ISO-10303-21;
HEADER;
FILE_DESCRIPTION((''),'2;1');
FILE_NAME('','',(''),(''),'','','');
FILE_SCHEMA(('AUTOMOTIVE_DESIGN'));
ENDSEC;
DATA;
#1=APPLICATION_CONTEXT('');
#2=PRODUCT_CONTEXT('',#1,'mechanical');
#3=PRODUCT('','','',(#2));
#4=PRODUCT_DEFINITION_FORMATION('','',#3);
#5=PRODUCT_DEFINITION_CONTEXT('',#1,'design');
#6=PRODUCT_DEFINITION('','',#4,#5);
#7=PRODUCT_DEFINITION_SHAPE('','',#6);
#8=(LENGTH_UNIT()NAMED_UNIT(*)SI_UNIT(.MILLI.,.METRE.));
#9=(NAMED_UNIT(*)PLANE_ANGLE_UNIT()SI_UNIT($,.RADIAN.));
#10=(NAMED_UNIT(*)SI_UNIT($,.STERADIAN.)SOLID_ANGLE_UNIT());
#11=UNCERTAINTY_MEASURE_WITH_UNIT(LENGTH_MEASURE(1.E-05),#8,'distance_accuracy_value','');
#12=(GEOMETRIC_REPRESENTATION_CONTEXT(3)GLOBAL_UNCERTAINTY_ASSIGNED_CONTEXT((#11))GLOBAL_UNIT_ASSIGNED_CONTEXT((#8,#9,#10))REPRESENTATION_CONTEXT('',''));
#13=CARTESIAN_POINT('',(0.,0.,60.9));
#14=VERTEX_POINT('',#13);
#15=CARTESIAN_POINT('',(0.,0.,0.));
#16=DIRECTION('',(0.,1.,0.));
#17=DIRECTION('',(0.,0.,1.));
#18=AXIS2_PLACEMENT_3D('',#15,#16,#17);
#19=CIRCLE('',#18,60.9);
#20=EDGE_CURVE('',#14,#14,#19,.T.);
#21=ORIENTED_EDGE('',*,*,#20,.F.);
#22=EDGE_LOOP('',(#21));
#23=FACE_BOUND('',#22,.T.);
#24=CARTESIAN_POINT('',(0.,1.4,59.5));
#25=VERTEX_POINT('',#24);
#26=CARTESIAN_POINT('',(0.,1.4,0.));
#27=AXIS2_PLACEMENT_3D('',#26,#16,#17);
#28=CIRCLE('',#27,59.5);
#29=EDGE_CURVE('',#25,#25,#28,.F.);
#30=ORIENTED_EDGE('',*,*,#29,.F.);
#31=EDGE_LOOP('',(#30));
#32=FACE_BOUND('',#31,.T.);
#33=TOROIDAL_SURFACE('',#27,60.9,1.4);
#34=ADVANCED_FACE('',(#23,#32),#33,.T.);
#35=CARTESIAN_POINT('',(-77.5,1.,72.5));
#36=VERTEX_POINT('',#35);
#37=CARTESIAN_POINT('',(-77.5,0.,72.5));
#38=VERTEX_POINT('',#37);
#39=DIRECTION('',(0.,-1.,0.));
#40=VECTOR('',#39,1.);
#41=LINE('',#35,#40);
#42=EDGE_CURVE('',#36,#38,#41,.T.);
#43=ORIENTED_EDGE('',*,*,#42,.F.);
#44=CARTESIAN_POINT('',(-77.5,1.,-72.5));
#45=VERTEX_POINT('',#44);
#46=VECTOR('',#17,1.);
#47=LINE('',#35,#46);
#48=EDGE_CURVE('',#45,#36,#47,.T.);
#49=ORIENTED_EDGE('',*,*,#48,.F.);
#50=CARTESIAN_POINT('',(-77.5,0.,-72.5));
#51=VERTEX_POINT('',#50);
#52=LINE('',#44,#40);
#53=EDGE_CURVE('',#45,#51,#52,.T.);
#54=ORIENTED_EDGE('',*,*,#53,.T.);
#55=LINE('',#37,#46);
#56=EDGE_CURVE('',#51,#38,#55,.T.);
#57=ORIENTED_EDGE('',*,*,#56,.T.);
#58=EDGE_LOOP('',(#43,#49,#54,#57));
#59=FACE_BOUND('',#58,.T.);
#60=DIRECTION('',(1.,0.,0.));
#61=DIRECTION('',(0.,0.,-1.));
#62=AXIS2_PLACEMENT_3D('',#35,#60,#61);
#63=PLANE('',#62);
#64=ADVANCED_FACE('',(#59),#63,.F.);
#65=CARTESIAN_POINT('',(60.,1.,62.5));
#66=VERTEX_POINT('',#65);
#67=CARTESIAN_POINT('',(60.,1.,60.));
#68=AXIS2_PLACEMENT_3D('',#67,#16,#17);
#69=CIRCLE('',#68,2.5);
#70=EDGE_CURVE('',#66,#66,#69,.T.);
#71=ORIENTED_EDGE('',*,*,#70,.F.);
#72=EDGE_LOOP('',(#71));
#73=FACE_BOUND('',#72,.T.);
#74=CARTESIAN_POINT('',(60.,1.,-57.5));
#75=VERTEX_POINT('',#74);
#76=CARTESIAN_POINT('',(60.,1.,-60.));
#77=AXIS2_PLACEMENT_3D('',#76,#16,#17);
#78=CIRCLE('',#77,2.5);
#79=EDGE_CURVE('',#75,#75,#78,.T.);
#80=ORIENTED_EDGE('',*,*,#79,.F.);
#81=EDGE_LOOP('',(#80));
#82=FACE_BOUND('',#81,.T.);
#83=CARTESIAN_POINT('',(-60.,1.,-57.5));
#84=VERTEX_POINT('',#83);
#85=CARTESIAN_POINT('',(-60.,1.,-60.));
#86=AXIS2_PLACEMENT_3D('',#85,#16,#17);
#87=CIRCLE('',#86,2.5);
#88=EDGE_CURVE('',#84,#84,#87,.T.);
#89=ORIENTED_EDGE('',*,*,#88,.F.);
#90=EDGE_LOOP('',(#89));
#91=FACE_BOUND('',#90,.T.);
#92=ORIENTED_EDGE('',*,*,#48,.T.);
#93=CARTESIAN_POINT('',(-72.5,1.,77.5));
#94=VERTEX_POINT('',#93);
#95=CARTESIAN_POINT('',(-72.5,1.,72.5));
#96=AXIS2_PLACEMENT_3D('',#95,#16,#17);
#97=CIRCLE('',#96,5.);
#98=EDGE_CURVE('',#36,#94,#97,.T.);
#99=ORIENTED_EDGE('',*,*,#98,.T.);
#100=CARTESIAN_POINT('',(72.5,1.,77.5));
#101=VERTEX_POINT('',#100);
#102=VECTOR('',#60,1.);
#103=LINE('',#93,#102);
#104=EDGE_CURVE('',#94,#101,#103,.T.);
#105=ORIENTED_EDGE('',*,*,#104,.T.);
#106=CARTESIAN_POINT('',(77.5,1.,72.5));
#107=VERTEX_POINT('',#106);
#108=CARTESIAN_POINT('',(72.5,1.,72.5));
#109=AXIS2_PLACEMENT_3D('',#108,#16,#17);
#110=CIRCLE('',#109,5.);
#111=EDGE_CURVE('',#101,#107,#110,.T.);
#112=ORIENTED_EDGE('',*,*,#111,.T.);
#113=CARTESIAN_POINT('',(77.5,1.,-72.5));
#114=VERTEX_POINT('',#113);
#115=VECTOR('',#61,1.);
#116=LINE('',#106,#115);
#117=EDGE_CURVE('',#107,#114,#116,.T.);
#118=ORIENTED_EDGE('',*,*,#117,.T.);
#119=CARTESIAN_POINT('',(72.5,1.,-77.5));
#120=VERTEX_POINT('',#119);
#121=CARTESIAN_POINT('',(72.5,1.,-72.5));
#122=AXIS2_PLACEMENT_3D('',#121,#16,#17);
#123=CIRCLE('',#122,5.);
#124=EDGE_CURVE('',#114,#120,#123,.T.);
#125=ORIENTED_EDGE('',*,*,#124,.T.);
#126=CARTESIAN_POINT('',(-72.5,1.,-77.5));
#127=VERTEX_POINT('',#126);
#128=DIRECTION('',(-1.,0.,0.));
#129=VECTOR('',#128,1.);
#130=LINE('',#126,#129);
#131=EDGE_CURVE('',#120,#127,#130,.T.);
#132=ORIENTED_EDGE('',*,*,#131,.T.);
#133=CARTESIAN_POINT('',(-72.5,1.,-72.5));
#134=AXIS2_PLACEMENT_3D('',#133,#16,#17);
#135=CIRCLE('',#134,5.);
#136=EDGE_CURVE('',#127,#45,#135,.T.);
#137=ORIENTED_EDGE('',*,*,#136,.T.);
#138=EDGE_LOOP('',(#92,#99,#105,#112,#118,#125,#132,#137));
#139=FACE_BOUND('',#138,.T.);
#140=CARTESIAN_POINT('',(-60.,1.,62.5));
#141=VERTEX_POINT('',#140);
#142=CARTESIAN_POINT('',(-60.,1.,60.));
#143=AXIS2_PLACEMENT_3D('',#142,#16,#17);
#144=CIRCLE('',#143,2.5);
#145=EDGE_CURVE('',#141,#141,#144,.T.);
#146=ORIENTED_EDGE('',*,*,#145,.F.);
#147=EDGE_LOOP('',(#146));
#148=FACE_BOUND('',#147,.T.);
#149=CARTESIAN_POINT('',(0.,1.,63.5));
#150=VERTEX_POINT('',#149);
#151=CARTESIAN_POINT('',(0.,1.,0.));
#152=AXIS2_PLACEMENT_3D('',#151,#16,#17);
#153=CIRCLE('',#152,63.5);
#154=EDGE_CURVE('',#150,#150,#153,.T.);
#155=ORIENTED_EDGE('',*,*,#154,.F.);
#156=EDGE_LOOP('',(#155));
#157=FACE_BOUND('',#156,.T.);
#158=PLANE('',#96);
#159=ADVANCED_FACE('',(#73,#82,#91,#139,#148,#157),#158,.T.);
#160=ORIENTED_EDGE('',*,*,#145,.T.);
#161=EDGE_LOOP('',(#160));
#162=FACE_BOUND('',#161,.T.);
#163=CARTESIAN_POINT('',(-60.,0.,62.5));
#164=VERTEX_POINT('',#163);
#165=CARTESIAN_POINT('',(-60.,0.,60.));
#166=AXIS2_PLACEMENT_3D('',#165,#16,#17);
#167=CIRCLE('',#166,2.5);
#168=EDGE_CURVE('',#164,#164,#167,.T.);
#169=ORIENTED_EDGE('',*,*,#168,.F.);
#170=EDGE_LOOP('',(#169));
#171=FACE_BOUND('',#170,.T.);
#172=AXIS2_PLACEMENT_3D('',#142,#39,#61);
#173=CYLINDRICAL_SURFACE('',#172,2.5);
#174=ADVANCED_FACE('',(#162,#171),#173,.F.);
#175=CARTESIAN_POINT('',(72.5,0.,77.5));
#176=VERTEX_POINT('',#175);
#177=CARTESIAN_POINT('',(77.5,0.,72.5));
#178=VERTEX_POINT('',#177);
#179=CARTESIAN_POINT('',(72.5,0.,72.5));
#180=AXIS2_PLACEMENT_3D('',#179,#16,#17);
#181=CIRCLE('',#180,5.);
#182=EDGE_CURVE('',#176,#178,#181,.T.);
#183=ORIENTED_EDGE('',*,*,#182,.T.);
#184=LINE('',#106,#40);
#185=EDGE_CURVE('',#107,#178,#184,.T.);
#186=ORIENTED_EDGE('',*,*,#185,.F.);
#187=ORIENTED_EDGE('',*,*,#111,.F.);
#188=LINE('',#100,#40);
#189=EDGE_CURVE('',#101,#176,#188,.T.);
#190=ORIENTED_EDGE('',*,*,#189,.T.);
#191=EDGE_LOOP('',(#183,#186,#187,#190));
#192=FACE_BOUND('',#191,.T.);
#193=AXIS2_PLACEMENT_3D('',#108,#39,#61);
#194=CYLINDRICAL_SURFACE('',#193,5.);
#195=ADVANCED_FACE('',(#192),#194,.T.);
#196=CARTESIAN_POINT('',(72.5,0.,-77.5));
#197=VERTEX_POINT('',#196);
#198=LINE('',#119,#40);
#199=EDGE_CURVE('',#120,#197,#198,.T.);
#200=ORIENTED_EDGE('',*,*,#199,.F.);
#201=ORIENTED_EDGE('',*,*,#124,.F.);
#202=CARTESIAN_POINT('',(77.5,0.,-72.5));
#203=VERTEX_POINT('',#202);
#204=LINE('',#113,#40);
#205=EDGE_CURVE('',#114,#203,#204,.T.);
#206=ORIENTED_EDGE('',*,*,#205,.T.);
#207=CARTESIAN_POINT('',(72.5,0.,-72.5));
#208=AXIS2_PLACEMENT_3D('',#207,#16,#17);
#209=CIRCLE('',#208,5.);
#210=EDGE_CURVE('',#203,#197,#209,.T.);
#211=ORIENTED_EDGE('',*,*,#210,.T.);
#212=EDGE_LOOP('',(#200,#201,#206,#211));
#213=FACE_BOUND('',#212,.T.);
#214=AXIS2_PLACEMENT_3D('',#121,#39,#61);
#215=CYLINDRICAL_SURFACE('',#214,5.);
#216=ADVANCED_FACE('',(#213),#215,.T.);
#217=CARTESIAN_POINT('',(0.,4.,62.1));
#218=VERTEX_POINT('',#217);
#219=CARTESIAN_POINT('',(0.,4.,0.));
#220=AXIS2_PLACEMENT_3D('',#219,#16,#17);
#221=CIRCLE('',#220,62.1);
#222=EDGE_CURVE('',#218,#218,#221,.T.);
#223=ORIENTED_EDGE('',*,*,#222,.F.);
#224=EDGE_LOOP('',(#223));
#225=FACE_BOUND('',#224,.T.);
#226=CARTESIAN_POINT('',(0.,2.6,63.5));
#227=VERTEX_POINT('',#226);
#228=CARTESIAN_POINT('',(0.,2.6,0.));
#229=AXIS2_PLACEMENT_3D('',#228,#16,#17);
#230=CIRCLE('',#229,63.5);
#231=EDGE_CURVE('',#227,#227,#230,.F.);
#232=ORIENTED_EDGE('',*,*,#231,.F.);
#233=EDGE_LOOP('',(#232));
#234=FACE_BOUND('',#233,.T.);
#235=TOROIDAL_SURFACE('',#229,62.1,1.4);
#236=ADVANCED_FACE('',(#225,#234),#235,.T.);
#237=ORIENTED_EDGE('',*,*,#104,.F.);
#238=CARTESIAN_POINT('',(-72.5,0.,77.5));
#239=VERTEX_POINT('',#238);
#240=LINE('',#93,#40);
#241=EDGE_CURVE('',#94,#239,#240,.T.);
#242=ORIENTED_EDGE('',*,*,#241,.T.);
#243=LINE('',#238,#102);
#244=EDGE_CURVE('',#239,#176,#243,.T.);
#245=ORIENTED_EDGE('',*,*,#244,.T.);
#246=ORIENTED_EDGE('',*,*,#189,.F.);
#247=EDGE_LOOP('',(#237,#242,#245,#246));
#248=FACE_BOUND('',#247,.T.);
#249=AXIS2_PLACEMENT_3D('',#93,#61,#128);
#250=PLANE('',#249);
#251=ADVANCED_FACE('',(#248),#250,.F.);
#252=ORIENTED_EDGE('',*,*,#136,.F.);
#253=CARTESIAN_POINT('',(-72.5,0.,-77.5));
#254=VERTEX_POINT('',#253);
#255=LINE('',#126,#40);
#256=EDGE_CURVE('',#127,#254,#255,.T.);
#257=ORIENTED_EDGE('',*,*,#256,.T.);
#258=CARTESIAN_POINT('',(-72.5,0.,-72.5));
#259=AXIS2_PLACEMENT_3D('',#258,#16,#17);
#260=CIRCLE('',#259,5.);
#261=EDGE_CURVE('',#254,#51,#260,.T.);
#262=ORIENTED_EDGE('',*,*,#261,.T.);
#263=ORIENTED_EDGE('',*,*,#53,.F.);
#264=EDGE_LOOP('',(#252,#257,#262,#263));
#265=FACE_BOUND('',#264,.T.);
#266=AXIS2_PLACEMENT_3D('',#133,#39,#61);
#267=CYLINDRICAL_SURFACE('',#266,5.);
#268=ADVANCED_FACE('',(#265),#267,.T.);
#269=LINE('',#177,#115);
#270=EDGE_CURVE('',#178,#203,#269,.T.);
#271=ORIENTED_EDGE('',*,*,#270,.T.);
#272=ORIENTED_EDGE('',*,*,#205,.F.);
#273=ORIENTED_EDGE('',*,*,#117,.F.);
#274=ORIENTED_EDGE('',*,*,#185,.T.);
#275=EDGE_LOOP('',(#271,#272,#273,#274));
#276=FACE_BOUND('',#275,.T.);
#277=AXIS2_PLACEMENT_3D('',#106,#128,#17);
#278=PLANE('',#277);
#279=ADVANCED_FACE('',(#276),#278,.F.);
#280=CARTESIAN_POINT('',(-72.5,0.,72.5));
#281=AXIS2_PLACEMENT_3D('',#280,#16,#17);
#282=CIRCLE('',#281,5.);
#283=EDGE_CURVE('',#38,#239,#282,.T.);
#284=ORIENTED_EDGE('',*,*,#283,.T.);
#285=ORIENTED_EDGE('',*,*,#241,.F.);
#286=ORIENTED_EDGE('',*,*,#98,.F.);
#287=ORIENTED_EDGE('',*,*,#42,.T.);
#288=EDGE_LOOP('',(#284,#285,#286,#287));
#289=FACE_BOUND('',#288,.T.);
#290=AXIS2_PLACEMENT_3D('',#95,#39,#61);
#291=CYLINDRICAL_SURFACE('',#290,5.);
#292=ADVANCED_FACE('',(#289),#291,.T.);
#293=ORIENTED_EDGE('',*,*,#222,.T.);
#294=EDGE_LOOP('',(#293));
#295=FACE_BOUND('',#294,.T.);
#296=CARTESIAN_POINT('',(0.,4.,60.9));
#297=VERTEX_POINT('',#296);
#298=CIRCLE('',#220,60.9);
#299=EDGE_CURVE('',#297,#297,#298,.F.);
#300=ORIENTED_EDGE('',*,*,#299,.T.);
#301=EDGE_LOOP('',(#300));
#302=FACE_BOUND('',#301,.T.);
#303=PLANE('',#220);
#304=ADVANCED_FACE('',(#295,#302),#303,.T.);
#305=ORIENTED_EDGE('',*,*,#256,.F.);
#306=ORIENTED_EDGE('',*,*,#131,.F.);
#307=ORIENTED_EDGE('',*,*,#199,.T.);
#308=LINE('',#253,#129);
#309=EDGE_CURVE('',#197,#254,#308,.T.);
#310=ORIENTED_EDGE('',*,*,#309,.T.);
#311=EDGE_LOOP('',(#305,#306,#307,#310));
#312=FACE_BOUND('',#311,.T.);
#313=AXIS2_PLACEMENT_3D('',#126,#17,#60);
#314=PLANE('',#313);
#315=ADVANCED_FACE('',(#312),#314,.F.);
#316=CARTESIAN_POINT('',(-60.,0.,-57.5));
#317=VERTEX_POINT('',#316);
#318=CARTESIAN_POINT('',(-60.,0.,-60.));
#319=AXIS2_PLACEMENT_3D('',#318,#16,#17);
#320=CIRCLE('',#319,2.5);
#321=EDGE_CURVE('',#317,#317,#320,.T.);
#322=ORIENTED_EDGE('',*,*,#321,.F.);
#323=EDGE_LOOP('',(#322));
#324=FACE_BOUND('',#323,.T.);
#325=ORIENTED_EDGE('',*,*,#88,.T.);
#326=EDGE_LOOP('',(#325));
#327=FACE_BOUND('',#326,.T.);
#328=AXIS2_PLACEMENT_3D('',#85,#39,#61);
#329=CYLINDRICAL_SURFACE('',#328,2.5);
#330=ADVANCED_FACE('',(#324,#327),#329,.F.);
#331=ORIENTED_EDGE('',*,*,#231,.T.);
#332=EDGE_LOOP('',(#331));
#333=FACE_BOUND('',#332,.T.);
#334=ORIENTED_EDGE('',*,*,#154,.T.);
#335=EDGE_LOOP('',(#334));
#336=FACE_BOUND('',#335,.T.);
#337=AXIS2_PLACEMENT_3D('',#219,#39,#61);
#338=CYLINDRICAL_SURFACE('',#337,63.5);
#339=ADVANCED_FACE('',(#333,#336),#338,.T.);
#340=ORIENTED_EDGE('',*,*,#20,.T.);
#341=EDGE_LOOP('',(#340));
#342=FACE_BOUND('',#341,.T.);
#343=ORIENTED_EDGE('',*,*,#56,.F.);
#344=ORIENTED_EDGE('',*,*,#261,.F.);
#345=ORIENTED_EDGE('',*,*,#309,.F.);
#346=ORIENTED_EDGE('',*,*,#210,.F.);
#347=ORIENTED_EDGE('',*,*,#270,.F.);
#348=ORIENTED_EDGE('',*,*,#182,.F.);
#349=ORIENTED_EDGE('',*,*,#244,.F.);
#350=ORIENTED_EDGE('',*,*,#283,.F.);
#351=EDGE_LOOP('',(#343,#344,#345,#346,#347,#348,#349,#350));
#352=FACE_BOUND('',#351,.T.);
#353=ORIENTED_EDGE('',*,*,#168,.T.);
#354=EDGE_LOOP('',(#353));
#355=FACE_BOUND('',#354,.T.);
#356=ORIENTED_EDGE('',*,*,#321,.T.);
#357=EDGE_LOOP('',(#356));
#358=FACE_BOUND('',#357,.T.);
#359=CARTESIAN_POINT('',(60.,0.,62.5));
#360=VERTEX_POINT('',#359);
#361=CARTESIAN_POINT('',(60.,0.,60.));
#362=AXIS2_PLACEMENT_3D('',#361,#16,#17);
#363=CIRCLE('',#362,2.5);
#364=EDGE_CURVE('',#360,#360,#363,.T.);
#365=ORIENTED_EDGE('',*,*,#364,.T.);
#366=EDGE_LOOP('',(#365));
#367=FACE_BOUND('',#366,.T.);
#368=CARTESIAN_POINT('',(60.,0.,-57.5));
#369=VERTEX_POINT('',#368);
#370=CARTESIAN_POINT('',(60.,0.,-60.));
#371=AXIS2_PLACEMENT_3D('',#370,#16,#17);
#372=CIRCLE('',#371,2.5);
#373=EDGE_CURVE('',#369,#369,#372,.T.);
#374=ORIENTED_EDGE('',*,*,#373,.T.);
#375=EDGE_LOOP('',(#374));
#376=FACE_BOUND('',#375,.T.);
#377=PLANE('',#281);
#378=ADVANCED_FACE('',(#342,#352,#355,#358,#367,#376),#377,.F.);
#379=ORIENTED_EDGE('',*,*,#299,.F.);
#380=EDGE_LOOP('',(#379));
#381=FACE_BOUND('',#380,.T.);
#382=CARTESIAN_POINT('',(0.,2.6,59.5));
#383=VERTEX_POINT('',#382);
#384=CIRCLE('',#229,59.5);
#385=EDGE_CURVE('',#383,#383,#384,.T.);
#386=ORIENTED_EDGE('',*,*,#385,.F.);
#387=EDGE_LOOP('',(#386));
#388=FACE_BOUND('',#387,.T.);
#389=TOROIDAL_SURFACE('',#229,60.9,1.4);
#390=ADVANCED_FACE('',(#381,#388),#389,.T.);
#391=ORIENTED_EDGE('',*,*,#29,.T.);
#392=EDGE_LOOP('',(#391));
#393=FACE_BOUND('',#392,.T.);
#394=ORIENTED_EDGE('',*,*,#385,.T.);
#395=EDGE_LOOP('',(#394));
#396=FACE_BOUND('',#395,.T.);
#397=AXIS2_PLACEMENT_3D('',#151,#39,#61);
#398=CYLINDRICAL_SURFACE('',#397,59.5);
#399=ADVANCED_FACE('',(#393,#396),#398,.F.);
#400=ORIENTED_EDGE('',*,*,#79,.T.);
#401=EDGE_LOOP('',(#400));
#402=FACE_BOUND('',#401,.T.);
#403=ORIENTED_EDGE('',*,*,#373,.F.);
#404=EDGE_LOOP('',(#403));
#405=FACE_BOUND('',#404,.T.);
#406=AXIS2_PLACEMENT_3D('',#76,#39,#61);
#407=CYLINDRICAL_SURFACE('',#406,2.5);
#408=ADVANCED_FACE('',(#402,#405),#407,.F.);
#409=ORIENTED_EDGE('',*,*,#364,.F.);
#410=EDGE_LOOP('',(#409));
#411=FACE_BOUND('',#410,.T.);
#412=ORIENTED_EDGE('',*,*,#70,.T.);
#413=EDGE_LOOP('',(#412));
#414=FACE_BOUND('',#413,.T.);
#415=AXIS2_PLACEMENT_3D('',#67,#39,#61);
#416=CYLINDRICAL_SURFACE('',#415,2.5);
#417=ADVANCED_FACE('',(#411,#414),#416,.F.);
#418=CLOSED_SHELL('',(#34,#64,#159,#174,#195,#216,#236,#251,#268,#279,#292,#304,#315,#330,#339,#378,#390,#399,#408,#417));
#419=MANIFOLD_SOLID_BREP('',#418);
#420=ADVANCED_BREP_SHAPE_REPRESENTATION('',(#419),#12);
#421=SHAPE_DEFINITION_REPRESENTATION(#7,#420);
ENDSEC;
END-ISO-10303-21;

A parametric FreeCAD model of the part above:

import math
import FreeCAD as App
import Part
import Sketcher
from FreeCAD import Vector
Q = App.Units.Quantity


def edges_at(feature, points):
    """Names of the edges that pass closest to the given points."""
    edges = feature.Shape.Edges
    near = lambda p: min(range(len(edges)), key=lambda i: edges[i].distToShape(Part.Vertex(*p))[0])
    return sorted({f"Edge{near(p) + 1}" for p in points})

doc = App.newDocument("Part")
body = doc.addObject("PartDesign::Body", "Body")

# Sketch on XZ plane
sketch1 = body.newObject("Sketcher::SketchObject", "Sketch")
sketch1.AttachmentSupport = (doc.getObject("XZ_Plane"), [""])
sketch1.MapMode = "FlatFace"
sketch1.addGeometry([
    Part.LineSegment(Vector(-72.5, 77.5, 0), Vector(72.5, 77.5, 0)),  # 0
    Part.ArcOfCircle(Part.Circle(Vector(72.5, 72.5, 0), Vector(0, 0, 1), 5), math.radians(0), math.radians(90)),  # 1
    Part.LineSegment(Vector(77.5, 72.5, 0), Vector(77.5, -72.5, 0)),  # 2
    Part.ArcOfCircle(Part.Circle(Vector(72.5, -72.5, 0), Vector(0, 0, 1), 5), math.radians(-90), math.radians(0)),  # 3
    Part.LineSegment(Vector(72.5, -77.5, 0), Vector(-72.5, -77.5, 0)),  # 4
    Part.ArcOfCircle(Part.Circle(Vector(-72.5, -72.5, 0), Vector(0, 0, 1), 5), math.radians(180), math.radians(270)),  # 5
    Part.LineSegment(Vector(-77.5, -72.5, 0), Vector(-77.5, 72.5, 0)),  # 6
    Part.ArcOfCircle(Part.Circle(Vector(-72.5, 72.5, 0), Vector(0, 0, 1), 5), math.radians(90), math.radians(180)),  # 7
    Part.Circle(Vector(-60, 60, 0), Vector(0, 0, 1), 2.5),  # 8
    Part.Circle(Vector(60, 60, 0), Vector(0, 0, 1), 2.5),  # 9
    Part.Circle(Vector(-60, -60, 0), Vector(0, 0, 1), 2.5),  # 10
    Part.Circle(Vector(0, 0, 0), Vector(0, 0, 1), 59.5),  # 11
    Part.Circle(Vector(60, -60, 0), Vector(0, 0, 1), 2.5),  # 12
], False)
sketch1.addConstraint([
    Sketcher.Constraint("Tangent", 0, 2, 1, 2),
    Sketcher.Constraint("Tangent", 1, 1, 2, 1),
    Sketcher.Constraint("Tangent", 2, 2, 3, 2),
    Sketcher.Constraint("Tangent", 3, 1, 4, 1),
    Sketcher.Constraint("Tangent", 4, 2, 5, 2),
    Sketcher.Constraint("Tangent", 5, 1, 6, 1),
    Sketcher.Constraint("Tangent", 6, 2, 7, 2),
    Sketcher.Constraint("Tangent", 7, 1, 0, 1),
    Sketcher.Constraint("Horizontal", 0),
    Sketcher.Constraint("Vertical", 2),
    Sketcher.Constraint("Horizontal", 4),
    Sketcher.Constraint("Vertical", 6),
    Sketcher.Constraint("Coincident", 11, 3, -1, 1),
    Sketcher.Constraint("Equal", 1, 3),
    Sketcher.Constraint("Equal", 3, 5),
    Sketcher.Constraint("Equal", 5, 7),
    Sketcher.Constraint("Equal", 8, 9),
    Sketcher.Constraint("Equal", 9, 10),
    Sketcher.Constraint("Equal", 10, 12),
    Sketcher.Constraint("Symmetric", 1, 3, 5, 3, -1, 1),
    Sketcher.Constraint("Symmetric", 9, 3, 10, 3, -1, 1),
    Sketcher.Constraint("Symmetric", 8, 3, 12, 3, -1, 1),
    Sketcher.Constraint("Symmetric", 8, 3, 9, 3, -2),
    Sketcher.Constraint("Equal", 4, 2),
    Sketcher.Constraint("Diameter", 8, Q("5 mm")),
    Sketcher.Constraint("Diameter", 11, Q("119 mm")),
    Sketcher.Constraint("Radius", 1, Q("5 mm")),
    Sketcher.Constraint("DistanceX", 0, 1, 0, 2, Q("145 mm")),
    Sketcher.Constraint("DistanceX", 8, 3, -1, 1, Q("60 mm")),
    Sketcher.Constraint("DistanceY", -1, 1, 8, 3, Q("60 mm")),
])
pad1 = body.newObject("PartDesign::Pad", "Pad")
pad1.Profile = sketch1
pad1.Length = 1
pad1.Reversed = True

# Sketch on XZ plane
sketch2 = body.newObject("Sketcher::SketchObject", "Sketch001")
sketch2.AttachmentSupport = (doc.getObject("XZ_Plane"), [""])
sketch2.MapMode = "FlatFace"
sketch2.AttachmentOffset = App.Placement(Vector(0, 0, -1), App.Rotation())
sketch2.addGeometry([
    Part.Circle(Vector(0, 0, 0), Vector(0, 0, 1), 64),
    Part.Circle(Vector(0, 0, 0), Vector(0, 0, 1), 60),
], False)
sketch2.addConstraint([
    Sketcher.Constraint("Coincident", 0, 3, -1, 1),
    Sketcher.Constraint("Coincident", 1, 3, -1, 1),
    Sketcher.Constraint("Diameter", 0, Q("127 mm")),
    Sketcher.Constraint("Diameter", 1, Q("119 mm")),
])
pad2 = body.newObject("PartDesign::Pad", "Pad001")
pad2.Profile = sketch2
pad2.Length = 3
pad2.Reversed = True
doc.recompute()

fillet = body.newObject("PartDesign::Fillet", "Fillet")
fillet.Base = (pad2, edges_at(pad2, [(0, 4, -63.5), (0, 4, -59.5)]))
fillet.Radius = 1.4
doc.recompute()

fillet2 = body.newObject("PartDesign::Fillet", "Fillet001")
fillet2.Base = (fillet, edges_at(fillet, [(0, 0, -59.5)]))
fillet2.Radius = 1.4

doc.recompute()
